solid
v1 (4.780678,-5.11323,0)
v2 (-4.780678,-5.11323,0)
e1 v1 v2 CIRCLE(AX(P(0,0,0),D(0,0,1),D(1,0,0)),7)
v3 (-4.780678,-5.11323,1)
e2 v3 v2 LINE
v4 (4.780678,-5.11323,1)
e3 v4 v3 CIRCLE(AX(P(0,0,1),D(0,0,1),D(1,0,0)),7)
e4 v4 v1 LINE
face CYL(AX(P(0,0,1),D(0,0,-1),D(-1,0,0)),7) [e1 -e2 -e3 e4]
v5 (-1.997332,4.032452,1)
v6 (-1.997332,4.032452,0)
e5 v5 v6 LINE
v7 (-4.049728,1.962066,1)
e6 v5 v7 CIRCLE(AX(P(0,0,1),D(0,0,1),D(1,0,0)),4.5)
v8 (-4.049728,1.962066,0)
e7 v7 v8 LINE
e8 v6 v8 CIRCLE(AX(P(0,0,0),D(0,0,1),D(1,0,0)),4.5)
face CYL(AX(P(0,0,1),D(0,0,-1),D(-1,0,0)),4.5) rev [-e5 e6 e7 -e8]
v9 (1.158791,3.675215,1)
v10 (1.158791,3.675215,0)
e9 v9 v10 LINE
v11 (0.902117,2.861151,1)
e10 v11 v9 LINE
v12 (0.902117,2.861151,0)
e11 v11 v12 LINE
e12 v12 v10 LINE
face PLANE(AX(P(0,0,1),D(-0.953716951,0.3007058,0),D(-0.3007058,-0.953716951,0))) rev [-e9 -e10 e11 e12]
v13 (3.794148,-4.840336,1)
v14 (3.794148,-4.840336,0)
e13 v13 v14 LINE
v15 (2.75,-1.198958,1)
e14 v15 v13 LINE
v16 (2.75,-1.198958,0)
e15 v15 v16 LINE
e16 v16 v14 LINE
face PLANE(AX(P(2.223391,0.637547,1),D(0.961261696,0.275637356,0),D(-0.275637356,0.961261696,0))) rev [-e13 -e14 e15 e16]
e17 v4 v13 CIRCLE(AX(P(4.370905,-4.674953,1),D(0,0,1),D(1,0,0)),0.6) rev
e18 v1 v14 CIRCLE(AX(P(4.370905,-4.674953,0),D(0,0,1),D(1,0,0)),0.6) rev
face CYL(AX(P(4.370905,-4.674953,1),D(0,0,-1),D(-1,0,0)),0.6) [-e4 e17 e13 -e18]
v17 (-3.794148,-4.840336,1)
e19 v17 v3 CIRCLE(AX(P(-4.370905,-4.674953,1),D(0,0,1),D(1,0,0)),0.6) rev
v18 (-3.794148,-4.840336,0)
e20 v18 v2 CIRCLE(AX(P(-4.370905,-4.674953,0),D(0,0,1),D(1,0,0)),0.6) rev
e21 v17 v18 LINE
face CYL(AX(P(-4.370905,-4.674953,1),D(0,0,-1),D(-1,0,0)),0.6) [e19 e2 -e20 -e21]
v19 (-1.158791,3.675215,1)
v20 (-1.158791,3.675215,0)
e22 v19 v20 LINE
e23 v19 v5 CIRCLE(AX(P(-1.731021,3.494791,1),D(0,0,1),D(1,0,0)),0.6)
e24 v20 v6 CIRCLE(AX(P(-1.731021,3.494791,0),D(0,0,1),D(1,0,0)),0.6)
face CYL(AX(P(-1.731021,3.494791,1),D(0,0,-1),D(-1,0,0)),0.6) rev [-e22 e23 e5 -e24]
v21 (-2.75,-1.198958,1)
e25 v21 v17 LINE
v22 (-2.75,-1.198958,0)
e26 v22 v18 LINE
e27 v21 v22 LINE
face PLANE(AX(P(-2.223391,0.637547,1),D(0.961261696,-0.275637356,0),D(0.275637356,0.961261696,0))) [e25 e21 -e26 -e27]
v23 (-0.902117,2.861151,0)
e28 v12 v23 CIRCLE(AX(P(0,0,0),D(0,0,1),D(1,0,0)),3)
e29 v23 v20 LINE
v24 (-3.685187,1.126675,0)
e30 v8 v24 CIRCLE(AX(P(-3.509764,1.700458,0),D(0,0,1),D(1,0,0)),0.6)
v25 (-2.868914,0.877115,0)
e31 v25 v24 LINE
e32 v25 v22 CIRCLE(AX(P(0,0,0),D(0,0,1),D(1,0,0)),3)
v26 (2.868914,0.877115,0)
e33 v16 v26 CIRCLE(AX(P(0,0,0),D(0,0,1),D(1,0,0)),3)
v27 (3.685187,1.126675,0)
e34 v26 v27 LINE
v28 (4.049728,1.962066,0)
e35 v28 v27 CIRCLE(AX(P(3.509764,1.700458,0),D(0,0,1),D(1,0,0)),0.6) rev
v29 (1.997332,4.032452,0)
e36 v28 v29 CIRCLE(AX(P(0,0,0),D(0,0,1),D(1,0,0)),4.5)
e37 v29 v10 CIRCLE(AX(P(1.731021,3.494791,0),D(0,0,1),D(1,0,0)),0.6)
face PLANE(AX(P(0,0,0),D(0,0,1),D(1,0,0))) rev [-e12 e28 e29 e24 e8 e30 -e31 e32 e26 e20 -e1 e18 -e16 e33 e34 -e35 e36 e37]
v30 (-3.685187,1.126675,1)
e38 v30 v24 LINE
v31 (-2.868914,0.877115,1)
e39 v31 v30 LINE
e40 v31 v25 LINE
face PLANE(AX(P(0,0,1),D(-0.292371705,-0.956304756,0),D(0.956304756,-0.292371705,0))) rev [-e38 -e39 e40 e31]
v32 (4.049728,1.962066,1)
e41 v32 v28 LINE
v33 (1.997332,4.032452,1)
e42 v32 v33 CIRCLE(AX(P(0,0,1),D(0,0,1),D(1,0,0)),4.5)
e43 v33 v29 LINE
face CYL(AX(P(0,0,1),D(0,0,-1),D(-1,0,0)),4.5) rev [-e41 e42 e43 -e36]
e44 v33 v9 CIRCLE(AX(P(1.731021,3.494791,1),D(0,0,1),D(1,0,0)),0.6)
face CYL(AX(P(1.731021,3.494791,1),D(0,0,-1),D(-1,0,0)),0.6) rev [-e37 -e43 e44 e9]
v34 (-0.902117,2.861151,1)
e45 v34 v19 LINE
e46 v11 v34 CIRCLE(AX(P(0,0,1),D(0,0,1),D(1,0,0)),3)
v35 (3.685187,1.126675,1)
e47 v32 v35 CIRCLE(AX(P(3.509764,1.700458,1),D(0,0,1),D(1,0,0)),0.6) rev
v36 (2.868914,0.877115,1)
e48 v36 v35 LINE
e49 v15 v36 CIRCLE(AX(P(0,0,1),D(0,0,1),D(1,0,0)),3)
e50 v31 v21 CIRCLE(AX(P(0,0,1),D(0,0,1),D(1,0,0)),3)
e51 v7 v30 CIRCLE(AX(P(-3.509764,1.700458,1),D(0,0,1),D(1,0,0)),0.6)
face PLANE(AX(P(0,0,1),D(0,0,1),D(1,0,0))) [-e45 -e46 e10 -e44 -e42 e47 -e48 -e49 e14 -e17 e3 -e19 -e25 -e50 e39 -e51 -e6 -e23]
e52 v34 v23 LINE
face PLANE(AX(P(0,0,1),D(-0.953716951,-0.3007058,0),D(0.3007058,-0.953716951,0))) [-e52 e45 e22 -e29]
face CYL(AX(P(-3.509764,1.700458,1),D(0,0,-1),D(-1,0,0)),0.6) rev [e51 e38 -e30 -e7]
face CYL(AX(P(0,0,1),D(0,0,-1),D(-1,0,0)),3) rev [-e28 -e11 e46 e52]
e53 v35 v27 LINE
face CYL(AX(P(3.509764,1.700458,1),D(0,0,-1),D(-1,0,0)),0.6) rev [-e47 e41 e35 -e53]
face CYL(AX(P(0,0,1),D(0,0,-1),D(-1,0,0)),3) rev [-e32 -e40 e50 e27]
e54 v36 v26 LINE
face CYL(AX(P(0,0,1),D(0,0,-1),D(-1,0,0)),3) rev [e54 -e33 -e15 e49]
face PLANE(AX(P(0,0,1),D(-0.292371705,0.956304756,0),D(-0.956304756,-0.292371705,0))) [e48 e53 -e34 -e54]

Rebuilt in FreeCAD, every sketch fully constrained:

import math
import FreeCAD as App
import Part
import Sketcher
from FreeCAD import Vector
Q = App.Units.Quantity

doc = App.newDocument("Part")
body = doc.addObject("PartDesign::Body", "Body")

# Sketch on XY plane
sketch1 = doc.addObject("Sketcher::SketchObject", "Sketch")
body.addObject(sketch1)
sketch1.AttachmentSupport = (doc.XY_Plane, [""])
sketch1.MapMode = "FlatFace"
sketch1.addGeometry(Part.LineSegment(Vector(2.75, -1.198958, 0), Vector(3.794148, -4.840336, 0)), False)
sketch1.addGeometry(Part.ArcOfCircle(Part.Circle(Vector(4.370905, -4.674953, 0), Vector(0, 0, 1), 0.6), math.radians(-164), math.radians(-46.925091)), False)
sketch1.addGeometry(Part.ArcOfCircle(Part.Circle(Vector(0, 0, 0), Vector(0, 0, 1), 7), math.radians(-46.925092), math.radians(226.925092)), False)
sketch1.addGeometry(Part.ArcOfCircle(Part.Circle(Vector(-4.370905, -4.674953, 0), Vector(0, 0, 1), 0.6), math.radians(-133.074909), math.radians(-16)), False)
sketch1.addGeometry(Part.LineSegment(Vector(-3.794148, -4.840336, 0), Vector(-2.75, -1.198958, 0)), False)
sketch1.addGeometry(Part.ArcOfCircle(Part.Circle(Vector(0, 0, 0), Vector(0, 0, 1), 3), math.radians(163), math.radians(203.556464)), False)
sketch1.addGeometry(Part.LineSegment(Vector(-2.868914, 0.877115, 0), Vector(-3.685187, 1.126675, 0)), False)
sketch1.addGeometry(Part.ArcOfCircle(Part.Circle(Vector(-3.509764, 1.700458, 0), Vector(0, 0, 1), 0.6), math.radians(154.150117), math.radians(253)), False)
sketch1.addGeometry(Part.ArcOfCircle(Part.Circle(Vector(0, 0, 0), Vector(0, 0, 1), 4.5), math.radians(116.349883), math.radians(154.150117)), False)
sketch1.addGeometry(Part.ArcOfCircle(Part.Circle(Vector(-1.731021, 3.494791, 0), Vector(0, 0, 1), 0.6), math.radians(17.5), math.radians(116.349883)), False)
sketch1.addGeometry(Part.LineSegment(Vector(-1.158791, 3.675215, 0), Vector(-0.902117, 2.861151, 0)), False)
sketch1.addGeometry(Part.ArcOfCircle(Part.Circle(Vector(0, 0, 0), Vector(0, 0, 1), 3), math.radians(72.5), math.radians(107.5)), False)
sketch1.addGeometry(Part.LineSegment(Vector(0.902117, 2.861151, 0), Vector(1.158791, 3.675215, 0)), False)
sketch1.addGeometry(Part.ArcOfCircle(Part.Circle(Vector(1.731021, 3.494791, 0), Vector(0, 0, 1), 0.6), math.radians(63.650117), math.radians(162.5)), False)
sketch1.addGeometry(Part.ArcOfCircle(Part.Circle(Vector(0, 0, 0), Vector(0, 0, 1), 4.5), math.radians(25.849883), math.radians(63.650117)), False)
sketch1.addGeometry(Part.ArcOfCircle(Part.Circle(Vector(3.509764, 1.700458, 0), Vector(0, 0, 1), 0.6), math.radians(-73), math.radians(25.849883)), False)
sketch1.addGeometry(Part.LineSegment(Vector(3.685187, 1.126675, 0), Vector(2.868914, 0.877115, 0)), False)
sketch1.addGeometry(Part.ArcOfCircle(Part.Circle(Vector(0, 0, 0), Vector(0, 0, 1), 3), math.radians(-23.556464), math.radians(17)), False)
sketch1.addConstraint(Sketcher.Constraint("Tangent", 0, 2, 1, 1))
sketch1.addConstraint(Sketcher.Constraint("Tangent", 1, 2, 2, 1))
sketch1.addConstraint(Sketcher.Constraint("Tangent", 2, 2, 3, 1))
sketch1.addConstraint(Sketcher.Constraint("Tangent", 3, 2, 4, 1))
sketch1.addConstraint(Sketcher.Constraint("Coincident", 4, 2, 5, 2))
sketch1.addConstraint(Sketcher.Constraint("Coincident", 5, 1, 6, 1))
sketch1.addConstraint(Sketcher.Constraint("Tangent", 6, 2, 7, 2))
sketch1.addConstraint(Sketcher.Constraint("Tangent", 7, 1, 8, 2))
sketch1.addConstraint(Sketcher.Constraint("Tangent", 8, 1, 9, 2))
sketch1.addConstraint(Sketcher.Constraint("Tangent", 9, 1, 10, 1))
sketch1.addConstraint(Sketcher.Constraint("Coincident", 10, 2, 11, 2))
sketch1.addConstraint(Sketcher.Constraint("Coincident", 11, 1, 12, 1))
sketch1.addConstraint(Sketcher.Constraint("Tangent", 12, 2, 13, 2))
sketch1.addConstraint(Sketcher.Constraint("Tangent", 13, 1, 14, 2))
sketch1.addConstraint(Sketcher.Constraint("Tangent", 14, 1, 15, 2))
sketch1.addConstraint(Sketcher.Constraint("Tangent", 15, 1, 16, 1))
sketch1.addConstraint(Sketcher.Constraint("Coincident", 16, 2, 17, 2))
sketch1.addConstraint(Sketcher.Constraint("Coincident", 17, 1, 0, 1))
sketch1.addConstraint(Sketcher.Constraint("Coincident", 2, 3, -1, 1))
sketch1.addConstraint(Sketcher.Constraint("Coincident", 5, 3, -1, 1))
sketch1.addConstraint(Sketcher.Constraint("Coincident", 8, 3, -1, 1))
sketch1.addConstraint(Sketcher.Constraint("Coincident", 11, 3, -1, 1))
sketch1.addConstraint(Sketcher.Constraint("Coincident", 14, 3, -1, 1))
sketch1.addConstraint(Sketcher.Constraint("Coincident", 17, 3, -1, 1))
sketch1.addConstraint(Sketcher.Constraint("Equal", 1, 3))
sketch1.addConstraint(Sketcher.Constraint("Equal", 3, 7))
sketch1.addConstraint(Sketcher.Constraint("Equal", 7, 9))
sketch1.addConstraint(Sketcher.Constraint("Equal", 5, 11))
sketch1.addConstraint(Sketcher.Constraint("Equal", 9, 13))
sketch1.addConstraint(Sketcher.Constraint("Equal", 8, 14))
sketch1.addConstraint(Sketcher.Constraint("Equal", 13, 15))
sketch1.addConstraint(Sketcher.Constraint("Equal", 11, 17))
sketch1.addConstraint(Sketcher.Constraint("Symmetric", 0, 2, 3, 2, -2))
sketch1.addConstraint(Sketcher.Constraint("Symmetric", 9, 1, 12, 2, -2))
sketch1.addConstraint(Sketcher.Constraint("Symmetric", 6, 2, 15, 1, -2))
sketch1.addConstraint(Sketcher.Constraint("Equal", 6, 10))
sketch1.addConstraint(Sketcher.Constraint("Radius", 2, 7.0))
sketch1.addConstraint(Sketcher.Constraint("Radius", 5, 3.0))
sketch1.addConstraint(Sketcher.Constraint("Radius", 1, 0.6))
sketch1.addConstraint(Sketcher.Constraint("Radius", 8, 4.5))
sketch1.addConstraint(Sketcher.Constraint("Angle", 0, Q("-74 deg")))
sketch1.addConstraint(Sketcher.Constraint("Angle", 6, Q("163 deg")))
sketch1.addConstraint(Sketcher.Constraint("Angle", 10, Q("-72.5 deg")))
sketch1.addConstraint(Sketcher.Constraint("DistanceX", 4, 2, -1, 1, 2.75))
sketch1.addConstraint(Sketcher.Constraint("DistanceY", 5, 1, 9, 1, 2.7981))
pad1 = doc.addObject("PartDesign::Pad", "Pad")
body.addObject(pad1)
pad1.Profile = sketch1
pad1.Length = 1

doc.recompute()
